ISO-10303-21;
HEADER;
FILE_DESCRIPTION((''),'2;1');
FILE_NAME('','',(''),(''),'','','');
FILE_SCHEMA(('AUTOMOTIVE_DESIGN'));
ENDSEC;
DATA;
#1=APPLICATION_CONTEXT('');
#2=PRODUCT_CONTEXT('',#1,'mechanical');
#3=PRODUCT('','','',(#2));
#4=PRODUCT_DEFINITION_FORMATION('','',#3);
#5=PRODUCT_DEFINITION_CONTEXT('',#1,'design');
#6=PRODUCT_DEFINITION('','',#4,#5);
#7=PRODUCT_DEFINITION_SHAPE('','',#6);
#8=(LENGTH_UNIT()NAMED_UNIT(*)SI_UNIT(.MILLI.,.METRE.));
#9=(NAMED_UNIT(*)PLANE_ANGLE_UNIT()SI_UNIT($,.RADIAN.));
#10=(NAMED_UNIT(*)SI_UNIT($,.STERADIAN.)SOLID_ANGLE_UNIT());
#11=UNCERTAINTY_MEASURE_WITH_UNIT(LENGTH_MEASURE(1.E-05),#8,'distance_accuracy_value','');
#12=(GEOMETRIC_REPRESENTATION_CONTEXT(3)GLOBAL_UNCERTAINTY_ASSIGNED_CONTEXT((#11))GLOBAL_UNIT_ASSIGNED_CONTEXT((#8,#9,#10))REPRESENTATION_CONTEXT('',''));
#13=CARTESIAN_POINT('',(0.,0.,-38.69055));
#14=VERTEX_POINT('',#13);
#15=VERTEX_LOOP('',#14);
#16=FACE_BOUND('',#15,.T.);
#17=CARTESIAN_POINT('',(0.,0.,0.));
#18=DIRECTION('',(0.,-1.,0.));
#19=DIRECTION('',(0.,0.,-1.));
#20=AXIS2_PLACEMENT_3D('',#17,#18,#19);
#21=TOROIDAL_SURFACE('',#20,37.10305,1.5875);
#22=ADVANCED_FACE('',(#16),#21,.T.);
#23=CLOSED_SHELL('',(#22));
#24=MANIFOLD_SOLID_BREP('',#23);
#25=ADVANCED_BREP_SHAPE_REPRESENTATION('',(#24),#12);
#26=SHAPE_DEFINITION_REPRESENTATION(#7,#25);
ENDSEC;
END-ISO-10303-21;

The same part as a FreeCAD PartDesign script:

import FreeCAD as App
import Part
import Sketcher
from FreeCAD import Vector
Q = App.Units.Quantity

doc = App.newDocument("Part")
body = doc.addObject("PartDesign::Body", "Body")

# Sketch on XY plane
sketch1 = body.newObject("Sketcher::SketchObject", "Sketch")
sketch1.AttachmentSupport = (doc.getObject("XY_Plane"), [""])
sketch1.MapMode = "FlatFace"
sketch1.addGeometry(Part.Circle(Vector(-37.1, 0, 0), Vector(0, 0, 1), 1.6), False)
sketch1.addConstraint(Sketcher.Constraint("PointOnObject", 0, 3, -1))
sketch1.addConstraint(Sketcher.Constraint("Diameter", 0, Q("0.125 in")))
sketch1.addConstraint(Sketcher.Constraint("DistanceX", 0, 3, -1, 1, 37.10305))
revolution = body.newObject("PartDesign::Revolution", "Revolution")
revolution.Profile = sketch1
revolution.ReferenceAxis = (sketch1, ["V_Axis"])
revolution.Angle = 360

doc.recompute()
